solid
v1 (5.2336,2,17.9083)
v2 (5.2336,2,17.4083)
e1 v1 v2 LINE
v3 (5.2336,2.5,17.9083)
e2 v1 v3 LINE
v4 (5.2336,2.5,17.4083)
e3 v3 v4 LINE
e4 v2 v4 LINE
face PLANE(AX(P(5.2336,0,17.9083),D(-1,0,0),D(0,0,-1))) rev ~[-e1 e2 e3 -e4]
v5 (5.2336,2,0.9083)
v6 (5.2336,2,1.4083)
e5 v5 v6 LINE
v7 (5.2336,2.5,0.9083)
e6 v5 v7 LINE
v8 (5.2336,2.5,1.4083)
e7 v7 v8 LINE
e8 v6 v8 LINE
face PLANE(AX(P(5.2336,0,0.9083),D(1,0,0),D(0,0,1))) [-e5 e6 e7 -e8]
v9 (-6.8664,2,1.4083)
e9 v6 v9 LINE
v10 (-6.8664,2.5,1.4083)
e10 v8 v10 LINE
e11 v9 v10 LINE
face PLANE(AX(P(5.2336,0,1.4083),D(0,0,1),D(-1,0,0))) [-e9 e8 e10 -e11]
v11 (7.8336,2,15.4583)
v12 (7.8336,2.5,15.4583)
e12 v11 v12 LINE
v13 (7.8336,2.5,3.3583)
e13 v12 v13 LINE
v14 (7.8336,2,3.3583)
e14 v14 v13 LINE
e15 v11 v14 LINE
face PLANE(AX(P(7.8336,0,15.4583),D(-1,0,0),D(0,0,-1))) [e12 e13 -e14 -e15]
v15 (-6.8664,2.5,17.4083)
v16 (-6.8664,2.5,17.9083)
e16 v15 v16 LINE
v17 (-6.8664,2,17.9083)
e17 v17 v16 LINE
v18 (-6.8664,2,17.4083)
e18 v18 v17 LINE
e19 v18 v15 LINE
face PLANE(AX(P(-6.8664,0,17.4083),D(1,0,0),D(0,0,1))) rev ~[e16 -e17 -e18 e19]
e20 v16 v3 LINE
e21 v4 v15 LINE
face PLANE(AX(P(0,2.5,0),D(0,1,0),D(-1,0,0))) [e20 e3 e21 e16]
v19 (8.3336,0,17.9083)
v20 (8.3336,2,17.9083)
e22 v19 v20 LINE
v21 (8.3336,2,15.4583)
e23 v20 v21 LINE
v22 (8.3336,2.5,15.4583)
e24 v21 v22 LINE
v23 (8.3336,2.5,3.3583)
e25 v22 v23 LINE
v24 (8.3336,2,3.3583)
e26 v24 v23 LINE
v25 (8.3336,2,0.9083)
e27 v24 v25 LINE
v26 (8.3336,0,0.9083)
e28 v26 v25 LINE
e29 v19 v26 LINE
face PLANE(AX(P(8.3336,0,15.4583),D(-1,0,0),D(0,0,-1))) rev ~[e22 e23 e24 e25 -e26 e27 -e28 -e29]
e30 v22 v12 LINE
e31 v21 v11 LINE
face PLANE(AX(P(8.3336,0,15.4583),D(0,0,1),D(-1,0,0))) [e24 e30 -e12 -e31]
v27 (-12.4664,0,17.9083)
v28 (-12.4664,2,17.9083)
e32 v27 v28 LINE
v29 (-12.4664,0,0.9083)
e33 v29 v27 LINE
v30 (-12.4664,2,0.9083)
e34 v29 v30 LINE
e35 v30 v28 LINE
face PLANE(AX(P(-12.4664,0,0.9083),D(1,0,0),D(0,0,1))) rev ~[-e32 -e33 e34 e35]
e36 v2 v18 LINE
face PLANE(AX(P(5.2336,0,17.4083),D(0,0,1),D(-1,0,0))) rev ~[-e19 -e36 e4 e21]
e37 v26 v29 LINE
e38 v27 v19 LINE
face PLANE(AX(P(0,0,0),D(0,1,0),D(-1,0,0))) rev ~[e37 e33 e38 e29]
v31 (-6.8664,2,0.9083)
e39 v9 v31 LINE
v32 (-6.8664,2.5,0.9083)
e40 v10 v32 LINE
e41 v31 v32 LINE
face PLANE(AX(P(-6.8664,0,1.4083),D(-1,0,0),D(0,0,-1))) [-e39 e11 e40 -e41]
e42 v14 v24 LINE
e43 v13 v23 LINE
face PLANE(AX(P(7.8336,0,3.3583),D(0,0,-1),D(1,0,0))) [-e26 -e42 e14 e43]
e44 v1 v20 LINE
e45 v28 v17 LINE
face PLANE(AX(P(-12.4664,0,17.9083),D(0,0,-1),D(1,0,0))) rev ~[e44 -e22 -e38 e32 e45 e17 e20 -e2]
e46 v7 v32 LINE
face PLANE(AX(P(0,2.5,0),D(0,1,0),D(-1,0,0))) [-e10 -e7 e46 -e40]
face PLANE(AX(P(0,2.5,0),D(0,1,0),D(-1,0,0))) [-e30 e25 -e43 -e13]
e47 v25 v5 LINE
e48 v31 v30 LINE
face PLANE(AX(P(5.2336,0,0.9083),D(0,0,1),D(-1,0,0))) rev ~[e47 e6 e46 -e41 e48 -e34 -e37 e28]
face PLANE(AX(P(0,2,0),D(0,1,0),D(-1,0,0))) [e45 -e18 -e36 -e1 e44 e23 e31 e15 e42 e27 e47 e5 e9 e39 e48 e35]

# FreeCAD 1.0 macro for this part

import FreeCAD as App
import Part
import Sketcher
from FreeCAD import Vector
Q = App.Units.Quantity

doc = App.newDocument("Part")
params = doc.addObject("Spreadsheet::Sheet", "Params")
for row, (alias, value) in enumerate([
    ("sketch1_height", "17 mm"),
    ("sketch1_width", "5.6 mm"),
    ("sketch1_width2", "3.1 mm"),
    ("sketch1_width3", "0.5 mm"),
    ("sketch1_height2", "2.45 mm"),
    ("pad1_length", "2 mm"),
    ("sketch2_height", "0.5 mm"),
    ("sketch2_width", "12.1 mm"),
    ("pad2_length", "2.5 mm"),
    ("sketch3_width", "0.5 mm"),
    ("sketch3_height", "12.1 mm"),
    ("pad3_length", "2.5 mm"),
    ("sketch4_height", "0.5 mm"),
    ("sketch4_width", "12.1 mm"),
    ("pad4_length", "2.5 mm"),
], start=1):
    params.set(f"A{row}", alias)
    params.set(f"B{row}", "=" + value)
    params.setAlias(f"B{row}", alias)

body = doc.addObject("PartDesign::Body", "Body")

# Sketch on XZ plane
sketch1 = body.newObject("Sketcher::SketchObject", "Sketch")
sketch1.AttachmentSupport = (doc.getObject("XZ_Plane"), [""])
sketch1.MapMode = "FlatFace"
sketch1.addGeometry(Part.LineSegment(Vector(-12.5, 0.9, 0), Vector(-12.5, 17.9, 0)), False)
sketch1.addGeometry(Part.LineSegment(Vector(-12.5, 17.9, 0), Vector(-6.9, 17.9, 0)), False)
sketch1.addGeometry(Part.LineSegment(Vector(-6.9, 17.9, 0), Vector(-6.9, 17.4, 0)), False)
sketch1.addGeometry(Part.LineSegment(Vector(-6.9, 17.4, 0), Vector(5.2, 17.4, 0)), False)
sketch1.addGeometry(Part.LineSegment(Vector(5.2, 17.4, 0), Vector(5.2, 17.9, 0)), False)
sketch1.addGeometry(Part.LineSegment(Vector(5.2, 17.9, 0), Vector(8.3, 17.9, 0)), False)
sketch1.addGeometry(Part.LineSegment(Vector(8.3, 17.9, 0), Vector(8.3, 15.5, 0)), False)
sketch1.addGeometry(Part.LineSegment(Vector(8.3, 15.5, 0), Vector(7.8, 15.5, 0)), False)
sketch1.addGeometry(Part.LineSegment(Vector(7.8, 15.5, 0), Vector(7.8, 3.4, 0)), False)
sketch1.addGeometry(Part.LineSegment(Vector(7.8, 3.4, 0), Vector(8.3, 3.4, 0)), False)
sketch1.addGeometry(Part.LineSegment(Vector(8.3, 3.4, 0), Vector(8.3, 0.9, 0)), False)
sketch1.addGeometry(Part.LineSegment(Vector(8.3, 0.9, 0), Vector(5.2, 0.9, 0)), False)
sketch1.addGeometry(Part.LineSegment(Vector(5.2, 0.9, 0), Vector(5.2, 1.4, 0)), False)
sketch1.addGeometry(Part.LineSegment(Vector(5.2, 1.4, 0), Vector(-6.9, 1.4, 0)), False)
sketch1.addGeometry(Part.LineSegment(Vector(-6.9, 1.4, 0), Vector(-6.9, 0.9, 0)), False)
sketch1.addGeometry(Part.LineSegment(Vector(-6.9, 0.9, 0), Vector(-12.5, 0.9, 0)), False)
sketch1.addConstraint(Sketcher.Constraint("Coincident", 0, 2, 1, 1))
sketch1.addConstraint(Sketcher.Constraint("Coincident", 1, 2, 2, 1))
sketch1.addConstraint(Sketcher.Constraint("Coincident", 2, 2, 3, 1))
sketch1.addConstraint(Sketcher.Constraint("Coincident", 3, 2, 4, 1))
sketch1.addConstraint(Sketcher.Constraint("Coincident", 4, 2, 5, 1))
sketch1.addConstraint(Sketcher.Constraint("Coincident", 5, 2, 6, 1))
sketch1.addConstraint(Sketcher.Constraint("Coincident", 6, 2, 7, 1))
sketch1.addConstraint(Sketcher.Constraint("Coincident", 7, 2, 8, 1))
sketch1.addConstraint(Sketcher.Constraint("Coincident", 8, 2, 9, 1))
sketch1.addConstraint(Sketcher.Constraint("Coincident", 9, 2, 10, 1))
sketch1.addConstraint(Sketcher.Constraint("Coincident", 10, 2, 11, 1))
sketch1.addConstraint(Sketcher.Constraint("Coincident", 11, 2, 12, 1))
sketch1.addConstraint(Sketcher.Constraint("Coincident", 12, 2, 13, 1))
sketch1.addConstraint(Sketcher.Constraint("Coincident", 13, 2, 14, 1))
sketch1.addConstraint(Sketcher.Constraint("Coincident", 14, 2, 15, 1))
sketch1.addConstraint(Sketcher.Constraint("Coincident", 15, 2, 0, 1))
sketch1.addConstraint(Sketcher.Constraint("Vertical", 0))
sketch1.addConstraint(Sketcher.Constraint("Horizontal", 1))
sketch1.addConstraint(Sketcher.Constraint("Vertical", 2))
sketch1.addConstraint(Sketcher.Constraint("Horizontal", 3))
sketch1.addConstraint(Sketcher.Constraint("Vertical", 4))
sketch1.addConstraint(Sketcher.Constraint("Horizontal", 5))
sketch1.addConstraint(Sketcher.Constraint("Vertical", 6))
sketch1.addConstraint(Sketcher.Constraint("Horizontal", 7))
sketch1.addConstraint(Sketcher.Constraint("Vertical", 8))
sketch1.addConstraint(Sketcher.Constraint("Horizontal", 9))
sketch1.addConstraint(Sketcher.Constraint("Vertical", 10))
sketch1.addConstraint(Sketcher.Constraint("Horizontal", 11))
sketch1.addConstraint(Sketcher.Constraint("Vertical", 12))
sketch1.addConstraint(Sketcher.Constraint("Horizontal", 13))
sketch1.addConstraint(Sketcher.Constraint("Vertical", 14))
sketch1.addConstraint(Sketcher.Constraint("Horizontal", 15))
sketch1.addConstraint(Sketcher.Constraint("Horizontal", 1, 2, 4, 2))
sketch1.addConstraint(Sketcher.Constraint("Horizontal", 11, 2, 14, 2))
sketch1.addConstraint(Sketcher.Constraint("Vertical", 6, 2, 9, 2))
sketch1.addConstraint(Sketcher.Constraint("Vertical", 4, 2, 11, 2))
sketch1.addConstraint(Sketcher.Constraint("Vertical", 2, 2, 13, 2))
sketch1.addConstraint(Sketcher.Constraint("Equal", 9, 2))
sketch1.addConstraint(Sketcher.Constraint("Equal", 13, 8))
sketch1.addConstraint(Sketcher.Constraint("Equal", 6, 10))
sketch1.addConstraint(Sketcher.Constraint("Equal", 4, 12))
sketch1.addConstraint(Sketcher.Constraint("DistanceY", 0, 1, 0, 2, Q("17 mm")))
sketch1.addConstraint(Sketcher.Constraint("DistanceX", 1, 1, 1, 2, Q("5.6 mm")))
sketch1.addConstraint(Sketcher.Constraint("DistanceX", 5, 1, 5, 2, Q("3.1 mm")))
sketch1.addConstraint(Sketcher.Constraint("DistanceX", 7, 2, 7, 1, Q("0.5 mm")))
sketch1.addConstraint(Sketcher.Constraint("DistanceY", 6, 2, 6, 1, Q("2.45 mm")))
sketch1.addConstraint(Sketcher.Constraint("DistanceX", 0, 2, -1, 1, Q("12.4664 mm")))
sketch1.addConstraint(Sketcher.Constraint("DistanceY", -1, 1, 0, 2, Q("17.9083 mm")))
sketch1.setExpression("Constraints[41]", "Params.sketch1_height")
sketch1.setExpression("Constraints[42]", "Params.sketch1_width")
sketch1.setExpression("Constraints[43]", "Params.sketch1_width2")
sketch1.setExpression("Constraints[44]", "Params.sketch1_width3")
sketch1.setExpression("Constraints[45]", "Params.sketch1_height2")
pad1 = body.newObject("PartDesign::Pad", "Pad")
pad1.Profile = sketch1
pad1.setExpression("Length", "Params.pad1_length")
pad1.Reversed = True

# Sketch on XZ plane
sketch2 = body.newObject("Sketcher::SketchObject", "Sketch001")
sketch2.AttachmentSupport = (doc.getObject("XZ_Plane"), [""])
sketch2.MapMode = "FlatFace"
sketch2.addGeometry(Part.LineSegment(Vector(-6.9, 17.4, 0), Vector(-6.9, 17.9, 0)), False)
sketch2.addGeometry(Part.LineSegment(Vector(-6.9, 17.9, 0), Vector(5.2, 17.9, 0)), False)
sketch2.addGeometry(Part.LineSegment(Vector(5.2, 17.9, 0), Vector(5.2, 17.4, 0)), False)
sketch2.addGeometry(Part.LineSegment(Vector(5.2, 17.4, 0), Vector(-6.9, 17.4, 0)), False)
sketch2.addConstraint(Sketcher.Constraint("Coincident", 0, 2, 1, 1))
sketch2.addConstraint(Sketcher.Constraint("Coincident", 1, 2, 2, 1))
sketch2.addConstraint(Sketcher.Constraint("Coincident", 2, 2, 3, 1))
sketch2.addConstraint(Sketcher.Constraint("Coincident", 3, 2, 0, 1))
sketch2.addConstraint(Sketcher.Constraint("Vertical", 0))
sketch2.addConstraint(Sketcher.Constraint("Horizontal", 1))
sketch2.addConstraint(Sketcher.Constraint("Vertical", 2))
sketch2.addConstraint(Sketcher.Constraint("Horizontal", 3))
sketch2.addConstraint(Sketcher.Constraint("DistanceY", 0, 1, 0, 2, Q("0.5 mm")))
sketch2.addConstraint(Sketcher.Constraint("DistanceX", 1, 1, 1, 2, Q("12.1 mm")))
sketch2.addConstraint(Sketcher.Constraint("DistanceX", 0, 2, -1, 1, Q("6.8664 mm")))
sketch2.addConstraint(Sketcher.Constraint("DistanceY", -1, 1, 0, 2, Q("17.9083 mm")))
sketch2.setExpression("Constraints[8]", "Params.sketch2_height")
sketch2.setExpression("Constraints[9]", "Params.sketch2_width")
pad2 = body.newObject("PartDesign::Pad", "Pad001")
pad2.Profile = sketch2
pad2.setExpression("Length", "Params.pad2_length")
pad2.Reversed = True

# Sketch on XZ plane
sketch3 = body.newObject("Sketcher::SketchObject", "Sketch002")
sketch3.AttachmentSupport = (doc.getObject("XZ_Plane"), [""])
sketch3.MapMode = "FlatFace"
sketch3.addGeometry(Part.LineSegment(Vector(7.8, 15.5, 0), Vector(8.3, 15.5, 0)), False)
sketch3.addGeometry(Part.LineSegment(Vector(8.3, 15.5, 0), Vector(8.3, 3.4, 0)), False)
sketch3.addGeometry(Part.LineSegment(Vector(8.3, 3.4, 0), Vector(7.8, 3.4, 0)), False)
sketch3.addGeometry(Part.LineSegment(Vector(7.8, 3.4, 0), Vector(7.8, 15.5, 0)), False)
sketch3.addConstraint(Sketcher.Constraint("Coincident", 0, 2, 1, 1))
sketch3.addConstraint(Sketcher.Constraint("Coincident", 1, 2, 2, 1))
sketch3.addConstraint(Sketcher.Constraint("Coincident", 2, 2, 3, 1))
sketch3.addConstraint(Sketcher.Constraint("Coincident", 3, 2, 0, 1))
sketch3.addConstraint(Sketcher.Constraint("Horizontal", 0))
sketch3.addConstraint(Sketcher.Constraint("Vertical", 1))
sketch3.addConstraint(Sketcher.Constraint("Horizontal", 2))
sketch3.addConstraint(Sketcher.Constraint("Vertical", 3))
sketch3.addConstraint(Sketcher.Constraint("DistanceX", 0, 1, 0, 2, Q("0.5 mm")))
sketch3.addConstraint(Sketcher.Constraint("DistanceY", 1, 2, 1, 1, Q("12.1 mm")))
sketch3.addConstraint(Sketcher.Constraint("DistanceX", -1, 1, 0, 2, Q("8.3336 mm")))
sketch3.addConstraint(Sketcher.Constraint("DistanceY", -1, 1, 0, 2, Q("15.4583 mm")))
sketch3.setExpression("Constraints[8]", "Params.sketch3_width")
sketch3.setExpression("Constraints[9]", "Params.sketch3_height")
pad3 = body.newObject("PartDesign::Pad", "Pad002")
pad3.Profile = sketch3
pad3.setExpression("Length", "Params.pad3_length")
pad3.Reversed = True

# Sketch on XZ plane
sketch4 = body.newObject("Sketcher::SketchObject", "Sketch003")
sketch4.AttachmentSupport = (doc.getObject("XZ_Plane"), [""])
sketch4.MapMode = "FlatFace"
sketch4.addGeometry(Part.LineSegment(Vector(5.2, 0.9, 0), Vector(-6.9, 0.9, 0)), False)
sketch4.addGeometry(Part.LineSegment(Vector(-6.9, 0.9, 0), Vector(-6.9, 1.4, 0)), False)
sketch4.addGeometry(Part.LineSegment(Vector(-6.9, 1.4, 0), Vector(5.2, 1.4, 0)), False)
sketch4.addGeometry(Part.LineSegment(Vector(5.2, 1.4, 0), Vector(5.2, 0.9, 0)), False)
sketch4.addConstraint(Sketcher.Constraint("Coincident", 0, 2, 1, 1))
sketch4.addConstraint(Sketcher.Constraint("Coincident", 1, 2, 2, 1))
sketch4.addConstraint(Sketcher.Constraint("Coincident", 2, 2, 3, 1))
sketch4.addConstraint(Sketcher.Constraint("Coincident", 3, 2, 0, 1))
sketch4.addConstraint(Sketcher.Constraint("Horizontal", 0))
sketch4.addConstraint(Sketcher.Constraint("Vertical", 1))
sketch4.addConstraint(Sketcher.Constraint("Horizontal", 2))
sketch4.addConstraint(Sketcher.Constraint("Vertical", 3))
sketch4.addConstraint(Sketcher.Constraint("DistanceY", 1, 1, 1, 2, Q("0.5 mm")))
sketch4.addConstraint(Sketcher.Constraint("DistanceX", 0, 2, 0, 1, Q("12.1 mm")))
sketch4.addConstraint(Sketcher.Constraint("DistanceX", 0, 2, -1, 1, Q("6.8664 mm")))
sketch4.addConstraint(Sketcher.Constraint("DistanceY", -1, 1, 0, 2, Q("0.9083 mm")))
sketch4.setExpression("Constraints[8]", "Params.sketch4_height")
sketch4.setExpression("Constraints[9]", "Params.sketch4_width")
pad4 = body.newObject("PartDesign::Pad", "Pad003")
pad4.Profile = sketch4
pad4.setExpression("Length", "Params.pad4_length")
pad4.Reversed = True

doc.recompute()
